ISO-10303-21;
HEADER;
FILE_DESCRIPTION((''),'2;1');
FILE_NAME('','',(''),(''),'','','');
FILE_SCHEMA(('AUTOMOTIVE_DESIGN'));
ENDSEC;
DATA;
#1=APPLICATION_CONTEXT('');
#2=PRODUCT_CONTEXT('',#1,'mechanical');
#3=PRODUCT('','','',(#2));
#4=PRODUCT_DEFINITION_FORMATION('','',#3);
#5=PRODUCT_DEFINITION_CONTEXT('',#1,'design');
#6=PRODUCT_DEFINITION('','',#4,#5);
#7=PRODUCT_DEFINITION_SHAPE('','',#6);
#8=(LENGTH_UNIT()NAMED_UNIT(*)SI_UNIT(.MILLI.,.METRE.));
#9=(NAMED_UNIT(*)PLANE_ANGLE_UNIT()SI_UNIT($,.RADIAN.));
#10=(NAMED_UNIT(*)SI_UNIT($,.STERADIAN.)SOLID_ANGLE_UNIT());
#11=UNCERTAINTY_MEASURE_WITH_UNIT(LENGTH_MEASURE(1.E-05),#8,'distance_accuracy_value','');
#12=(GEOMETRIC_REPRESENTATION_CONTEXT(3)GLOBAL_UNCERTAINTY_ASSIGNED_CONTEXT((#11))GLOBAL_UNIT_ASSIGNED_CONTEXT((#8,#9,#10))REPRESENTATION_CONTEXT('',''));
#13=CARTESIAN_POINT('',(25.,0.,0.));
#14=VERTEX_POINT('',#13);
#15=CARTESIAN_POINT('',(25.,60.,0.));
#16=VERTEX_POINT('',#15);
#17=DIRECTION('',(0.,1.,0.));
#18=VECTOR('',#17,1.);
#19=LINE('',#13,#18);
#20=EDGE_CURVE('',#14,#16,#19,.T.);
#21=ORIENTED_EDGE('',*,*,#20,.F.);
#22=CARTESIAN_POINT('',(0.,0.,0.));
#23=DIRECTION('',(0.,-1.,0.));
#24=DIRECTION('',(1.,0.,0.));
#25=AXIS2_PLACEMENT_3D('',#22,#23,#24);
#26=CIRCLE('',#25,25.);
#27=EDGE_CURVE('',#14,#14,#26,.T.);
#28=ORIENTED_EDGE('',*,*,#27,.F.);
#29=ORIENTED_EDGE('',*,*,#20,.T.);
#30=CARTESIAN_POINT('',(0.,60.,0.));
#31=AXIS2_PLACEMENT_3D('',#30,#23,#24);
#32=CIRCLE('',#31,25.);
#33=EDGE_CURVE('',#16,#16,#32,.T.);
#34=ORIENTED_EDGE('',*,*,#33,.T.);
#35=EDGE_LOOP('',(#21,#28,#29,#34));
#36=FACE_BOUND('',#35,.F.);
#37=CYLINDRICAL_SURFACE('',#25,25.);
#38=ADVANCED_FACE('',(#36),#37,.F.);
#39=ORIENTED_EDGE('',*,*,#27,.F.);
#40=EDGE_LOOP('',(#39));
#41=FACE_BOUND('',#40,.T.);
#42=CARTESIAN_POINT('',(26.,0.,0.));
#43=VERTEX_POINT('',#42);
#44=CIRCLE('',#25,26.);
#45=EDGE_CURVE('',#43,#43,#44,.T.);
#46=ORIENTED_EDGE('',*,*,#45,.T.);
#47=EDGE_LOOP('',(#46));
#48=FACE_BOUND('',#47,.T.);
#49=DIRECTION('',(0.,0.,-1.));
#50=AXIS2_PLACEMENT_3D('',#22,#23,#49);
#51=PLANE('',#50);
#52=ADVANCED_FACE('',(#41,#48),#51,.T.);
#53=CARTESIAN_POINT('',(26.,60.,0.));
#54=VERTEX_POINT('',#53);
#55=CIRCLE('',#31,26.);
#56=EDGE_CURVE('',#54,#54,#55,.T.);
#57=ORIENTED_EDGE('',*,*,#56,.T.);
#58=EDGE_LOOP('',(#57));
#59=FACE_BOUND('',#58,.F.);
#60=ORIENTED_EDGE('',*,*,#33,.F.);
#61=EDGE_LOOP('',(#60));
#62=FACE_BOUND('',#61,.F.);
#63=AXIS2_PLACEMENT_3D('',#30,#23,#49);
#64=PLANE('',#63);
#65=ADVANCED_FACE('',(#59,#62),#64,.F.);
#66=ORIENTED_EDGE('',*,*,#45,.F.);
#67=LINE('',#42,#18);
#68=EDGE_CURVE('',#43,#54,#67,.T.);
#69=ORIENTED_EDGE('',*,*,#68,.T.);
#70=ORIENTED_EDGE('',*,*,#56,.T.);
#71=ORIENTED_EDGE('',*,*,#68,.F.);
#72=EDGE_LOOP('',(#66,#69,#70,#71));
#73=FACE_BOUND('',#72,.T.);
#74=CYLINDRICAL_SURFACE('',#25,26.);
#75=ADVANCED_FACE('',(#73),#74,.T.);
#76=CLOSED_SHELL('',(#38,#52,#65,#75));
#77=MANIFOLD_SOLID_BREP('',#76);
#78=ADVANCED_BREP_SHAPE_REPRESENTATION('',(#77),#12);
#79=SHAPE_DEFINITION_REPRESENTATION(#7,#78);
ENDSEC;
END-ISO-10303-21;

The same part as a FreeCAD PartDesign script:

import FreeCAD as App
import Part
import Sketcher

doc = App.newDocument("Part")
body = doc.addObject("PartDesign::Body", "Body")

sketch1 = doc.addObject("Sketcher::SketchObject", "Sketch")
body.addObject(sketch1)
sketch1.AttachmentSupport = (doc.XZ_Plane, [""])
sketch1.MapMode = "FlatFace"
sketch1.addGeometry(Part.Circle(App.Vector(0, 0, 0), App.Vector(0, 0, 1), 26), False)
sketch1.addGeometry(Part.Circle(App.Vector(0, 0, 0), App.Vector(0, 0, 1), 25), False)
sketch1.addConstraint(Sketcher.Constraint("Coincident", 0, 3, -1, 1))
sketch1.addConstraint(Sketcher.Constraint("Coincident", 1, 3, -1, 1))
sketch1.addConstraint(Sketcher.Constraint("Diameter", 0, 52.0))
sketch1.addConstraint(Sketcher.Constraint("Diameter", 1, 50.0))
pad1 = doc.addObject("PartDesign::Pad", "Pad")
body.addObject(pad1)
pad1.Profile = sketch1
pad1.Length = 60
pad1.Reversed = True

doc.recompute()
